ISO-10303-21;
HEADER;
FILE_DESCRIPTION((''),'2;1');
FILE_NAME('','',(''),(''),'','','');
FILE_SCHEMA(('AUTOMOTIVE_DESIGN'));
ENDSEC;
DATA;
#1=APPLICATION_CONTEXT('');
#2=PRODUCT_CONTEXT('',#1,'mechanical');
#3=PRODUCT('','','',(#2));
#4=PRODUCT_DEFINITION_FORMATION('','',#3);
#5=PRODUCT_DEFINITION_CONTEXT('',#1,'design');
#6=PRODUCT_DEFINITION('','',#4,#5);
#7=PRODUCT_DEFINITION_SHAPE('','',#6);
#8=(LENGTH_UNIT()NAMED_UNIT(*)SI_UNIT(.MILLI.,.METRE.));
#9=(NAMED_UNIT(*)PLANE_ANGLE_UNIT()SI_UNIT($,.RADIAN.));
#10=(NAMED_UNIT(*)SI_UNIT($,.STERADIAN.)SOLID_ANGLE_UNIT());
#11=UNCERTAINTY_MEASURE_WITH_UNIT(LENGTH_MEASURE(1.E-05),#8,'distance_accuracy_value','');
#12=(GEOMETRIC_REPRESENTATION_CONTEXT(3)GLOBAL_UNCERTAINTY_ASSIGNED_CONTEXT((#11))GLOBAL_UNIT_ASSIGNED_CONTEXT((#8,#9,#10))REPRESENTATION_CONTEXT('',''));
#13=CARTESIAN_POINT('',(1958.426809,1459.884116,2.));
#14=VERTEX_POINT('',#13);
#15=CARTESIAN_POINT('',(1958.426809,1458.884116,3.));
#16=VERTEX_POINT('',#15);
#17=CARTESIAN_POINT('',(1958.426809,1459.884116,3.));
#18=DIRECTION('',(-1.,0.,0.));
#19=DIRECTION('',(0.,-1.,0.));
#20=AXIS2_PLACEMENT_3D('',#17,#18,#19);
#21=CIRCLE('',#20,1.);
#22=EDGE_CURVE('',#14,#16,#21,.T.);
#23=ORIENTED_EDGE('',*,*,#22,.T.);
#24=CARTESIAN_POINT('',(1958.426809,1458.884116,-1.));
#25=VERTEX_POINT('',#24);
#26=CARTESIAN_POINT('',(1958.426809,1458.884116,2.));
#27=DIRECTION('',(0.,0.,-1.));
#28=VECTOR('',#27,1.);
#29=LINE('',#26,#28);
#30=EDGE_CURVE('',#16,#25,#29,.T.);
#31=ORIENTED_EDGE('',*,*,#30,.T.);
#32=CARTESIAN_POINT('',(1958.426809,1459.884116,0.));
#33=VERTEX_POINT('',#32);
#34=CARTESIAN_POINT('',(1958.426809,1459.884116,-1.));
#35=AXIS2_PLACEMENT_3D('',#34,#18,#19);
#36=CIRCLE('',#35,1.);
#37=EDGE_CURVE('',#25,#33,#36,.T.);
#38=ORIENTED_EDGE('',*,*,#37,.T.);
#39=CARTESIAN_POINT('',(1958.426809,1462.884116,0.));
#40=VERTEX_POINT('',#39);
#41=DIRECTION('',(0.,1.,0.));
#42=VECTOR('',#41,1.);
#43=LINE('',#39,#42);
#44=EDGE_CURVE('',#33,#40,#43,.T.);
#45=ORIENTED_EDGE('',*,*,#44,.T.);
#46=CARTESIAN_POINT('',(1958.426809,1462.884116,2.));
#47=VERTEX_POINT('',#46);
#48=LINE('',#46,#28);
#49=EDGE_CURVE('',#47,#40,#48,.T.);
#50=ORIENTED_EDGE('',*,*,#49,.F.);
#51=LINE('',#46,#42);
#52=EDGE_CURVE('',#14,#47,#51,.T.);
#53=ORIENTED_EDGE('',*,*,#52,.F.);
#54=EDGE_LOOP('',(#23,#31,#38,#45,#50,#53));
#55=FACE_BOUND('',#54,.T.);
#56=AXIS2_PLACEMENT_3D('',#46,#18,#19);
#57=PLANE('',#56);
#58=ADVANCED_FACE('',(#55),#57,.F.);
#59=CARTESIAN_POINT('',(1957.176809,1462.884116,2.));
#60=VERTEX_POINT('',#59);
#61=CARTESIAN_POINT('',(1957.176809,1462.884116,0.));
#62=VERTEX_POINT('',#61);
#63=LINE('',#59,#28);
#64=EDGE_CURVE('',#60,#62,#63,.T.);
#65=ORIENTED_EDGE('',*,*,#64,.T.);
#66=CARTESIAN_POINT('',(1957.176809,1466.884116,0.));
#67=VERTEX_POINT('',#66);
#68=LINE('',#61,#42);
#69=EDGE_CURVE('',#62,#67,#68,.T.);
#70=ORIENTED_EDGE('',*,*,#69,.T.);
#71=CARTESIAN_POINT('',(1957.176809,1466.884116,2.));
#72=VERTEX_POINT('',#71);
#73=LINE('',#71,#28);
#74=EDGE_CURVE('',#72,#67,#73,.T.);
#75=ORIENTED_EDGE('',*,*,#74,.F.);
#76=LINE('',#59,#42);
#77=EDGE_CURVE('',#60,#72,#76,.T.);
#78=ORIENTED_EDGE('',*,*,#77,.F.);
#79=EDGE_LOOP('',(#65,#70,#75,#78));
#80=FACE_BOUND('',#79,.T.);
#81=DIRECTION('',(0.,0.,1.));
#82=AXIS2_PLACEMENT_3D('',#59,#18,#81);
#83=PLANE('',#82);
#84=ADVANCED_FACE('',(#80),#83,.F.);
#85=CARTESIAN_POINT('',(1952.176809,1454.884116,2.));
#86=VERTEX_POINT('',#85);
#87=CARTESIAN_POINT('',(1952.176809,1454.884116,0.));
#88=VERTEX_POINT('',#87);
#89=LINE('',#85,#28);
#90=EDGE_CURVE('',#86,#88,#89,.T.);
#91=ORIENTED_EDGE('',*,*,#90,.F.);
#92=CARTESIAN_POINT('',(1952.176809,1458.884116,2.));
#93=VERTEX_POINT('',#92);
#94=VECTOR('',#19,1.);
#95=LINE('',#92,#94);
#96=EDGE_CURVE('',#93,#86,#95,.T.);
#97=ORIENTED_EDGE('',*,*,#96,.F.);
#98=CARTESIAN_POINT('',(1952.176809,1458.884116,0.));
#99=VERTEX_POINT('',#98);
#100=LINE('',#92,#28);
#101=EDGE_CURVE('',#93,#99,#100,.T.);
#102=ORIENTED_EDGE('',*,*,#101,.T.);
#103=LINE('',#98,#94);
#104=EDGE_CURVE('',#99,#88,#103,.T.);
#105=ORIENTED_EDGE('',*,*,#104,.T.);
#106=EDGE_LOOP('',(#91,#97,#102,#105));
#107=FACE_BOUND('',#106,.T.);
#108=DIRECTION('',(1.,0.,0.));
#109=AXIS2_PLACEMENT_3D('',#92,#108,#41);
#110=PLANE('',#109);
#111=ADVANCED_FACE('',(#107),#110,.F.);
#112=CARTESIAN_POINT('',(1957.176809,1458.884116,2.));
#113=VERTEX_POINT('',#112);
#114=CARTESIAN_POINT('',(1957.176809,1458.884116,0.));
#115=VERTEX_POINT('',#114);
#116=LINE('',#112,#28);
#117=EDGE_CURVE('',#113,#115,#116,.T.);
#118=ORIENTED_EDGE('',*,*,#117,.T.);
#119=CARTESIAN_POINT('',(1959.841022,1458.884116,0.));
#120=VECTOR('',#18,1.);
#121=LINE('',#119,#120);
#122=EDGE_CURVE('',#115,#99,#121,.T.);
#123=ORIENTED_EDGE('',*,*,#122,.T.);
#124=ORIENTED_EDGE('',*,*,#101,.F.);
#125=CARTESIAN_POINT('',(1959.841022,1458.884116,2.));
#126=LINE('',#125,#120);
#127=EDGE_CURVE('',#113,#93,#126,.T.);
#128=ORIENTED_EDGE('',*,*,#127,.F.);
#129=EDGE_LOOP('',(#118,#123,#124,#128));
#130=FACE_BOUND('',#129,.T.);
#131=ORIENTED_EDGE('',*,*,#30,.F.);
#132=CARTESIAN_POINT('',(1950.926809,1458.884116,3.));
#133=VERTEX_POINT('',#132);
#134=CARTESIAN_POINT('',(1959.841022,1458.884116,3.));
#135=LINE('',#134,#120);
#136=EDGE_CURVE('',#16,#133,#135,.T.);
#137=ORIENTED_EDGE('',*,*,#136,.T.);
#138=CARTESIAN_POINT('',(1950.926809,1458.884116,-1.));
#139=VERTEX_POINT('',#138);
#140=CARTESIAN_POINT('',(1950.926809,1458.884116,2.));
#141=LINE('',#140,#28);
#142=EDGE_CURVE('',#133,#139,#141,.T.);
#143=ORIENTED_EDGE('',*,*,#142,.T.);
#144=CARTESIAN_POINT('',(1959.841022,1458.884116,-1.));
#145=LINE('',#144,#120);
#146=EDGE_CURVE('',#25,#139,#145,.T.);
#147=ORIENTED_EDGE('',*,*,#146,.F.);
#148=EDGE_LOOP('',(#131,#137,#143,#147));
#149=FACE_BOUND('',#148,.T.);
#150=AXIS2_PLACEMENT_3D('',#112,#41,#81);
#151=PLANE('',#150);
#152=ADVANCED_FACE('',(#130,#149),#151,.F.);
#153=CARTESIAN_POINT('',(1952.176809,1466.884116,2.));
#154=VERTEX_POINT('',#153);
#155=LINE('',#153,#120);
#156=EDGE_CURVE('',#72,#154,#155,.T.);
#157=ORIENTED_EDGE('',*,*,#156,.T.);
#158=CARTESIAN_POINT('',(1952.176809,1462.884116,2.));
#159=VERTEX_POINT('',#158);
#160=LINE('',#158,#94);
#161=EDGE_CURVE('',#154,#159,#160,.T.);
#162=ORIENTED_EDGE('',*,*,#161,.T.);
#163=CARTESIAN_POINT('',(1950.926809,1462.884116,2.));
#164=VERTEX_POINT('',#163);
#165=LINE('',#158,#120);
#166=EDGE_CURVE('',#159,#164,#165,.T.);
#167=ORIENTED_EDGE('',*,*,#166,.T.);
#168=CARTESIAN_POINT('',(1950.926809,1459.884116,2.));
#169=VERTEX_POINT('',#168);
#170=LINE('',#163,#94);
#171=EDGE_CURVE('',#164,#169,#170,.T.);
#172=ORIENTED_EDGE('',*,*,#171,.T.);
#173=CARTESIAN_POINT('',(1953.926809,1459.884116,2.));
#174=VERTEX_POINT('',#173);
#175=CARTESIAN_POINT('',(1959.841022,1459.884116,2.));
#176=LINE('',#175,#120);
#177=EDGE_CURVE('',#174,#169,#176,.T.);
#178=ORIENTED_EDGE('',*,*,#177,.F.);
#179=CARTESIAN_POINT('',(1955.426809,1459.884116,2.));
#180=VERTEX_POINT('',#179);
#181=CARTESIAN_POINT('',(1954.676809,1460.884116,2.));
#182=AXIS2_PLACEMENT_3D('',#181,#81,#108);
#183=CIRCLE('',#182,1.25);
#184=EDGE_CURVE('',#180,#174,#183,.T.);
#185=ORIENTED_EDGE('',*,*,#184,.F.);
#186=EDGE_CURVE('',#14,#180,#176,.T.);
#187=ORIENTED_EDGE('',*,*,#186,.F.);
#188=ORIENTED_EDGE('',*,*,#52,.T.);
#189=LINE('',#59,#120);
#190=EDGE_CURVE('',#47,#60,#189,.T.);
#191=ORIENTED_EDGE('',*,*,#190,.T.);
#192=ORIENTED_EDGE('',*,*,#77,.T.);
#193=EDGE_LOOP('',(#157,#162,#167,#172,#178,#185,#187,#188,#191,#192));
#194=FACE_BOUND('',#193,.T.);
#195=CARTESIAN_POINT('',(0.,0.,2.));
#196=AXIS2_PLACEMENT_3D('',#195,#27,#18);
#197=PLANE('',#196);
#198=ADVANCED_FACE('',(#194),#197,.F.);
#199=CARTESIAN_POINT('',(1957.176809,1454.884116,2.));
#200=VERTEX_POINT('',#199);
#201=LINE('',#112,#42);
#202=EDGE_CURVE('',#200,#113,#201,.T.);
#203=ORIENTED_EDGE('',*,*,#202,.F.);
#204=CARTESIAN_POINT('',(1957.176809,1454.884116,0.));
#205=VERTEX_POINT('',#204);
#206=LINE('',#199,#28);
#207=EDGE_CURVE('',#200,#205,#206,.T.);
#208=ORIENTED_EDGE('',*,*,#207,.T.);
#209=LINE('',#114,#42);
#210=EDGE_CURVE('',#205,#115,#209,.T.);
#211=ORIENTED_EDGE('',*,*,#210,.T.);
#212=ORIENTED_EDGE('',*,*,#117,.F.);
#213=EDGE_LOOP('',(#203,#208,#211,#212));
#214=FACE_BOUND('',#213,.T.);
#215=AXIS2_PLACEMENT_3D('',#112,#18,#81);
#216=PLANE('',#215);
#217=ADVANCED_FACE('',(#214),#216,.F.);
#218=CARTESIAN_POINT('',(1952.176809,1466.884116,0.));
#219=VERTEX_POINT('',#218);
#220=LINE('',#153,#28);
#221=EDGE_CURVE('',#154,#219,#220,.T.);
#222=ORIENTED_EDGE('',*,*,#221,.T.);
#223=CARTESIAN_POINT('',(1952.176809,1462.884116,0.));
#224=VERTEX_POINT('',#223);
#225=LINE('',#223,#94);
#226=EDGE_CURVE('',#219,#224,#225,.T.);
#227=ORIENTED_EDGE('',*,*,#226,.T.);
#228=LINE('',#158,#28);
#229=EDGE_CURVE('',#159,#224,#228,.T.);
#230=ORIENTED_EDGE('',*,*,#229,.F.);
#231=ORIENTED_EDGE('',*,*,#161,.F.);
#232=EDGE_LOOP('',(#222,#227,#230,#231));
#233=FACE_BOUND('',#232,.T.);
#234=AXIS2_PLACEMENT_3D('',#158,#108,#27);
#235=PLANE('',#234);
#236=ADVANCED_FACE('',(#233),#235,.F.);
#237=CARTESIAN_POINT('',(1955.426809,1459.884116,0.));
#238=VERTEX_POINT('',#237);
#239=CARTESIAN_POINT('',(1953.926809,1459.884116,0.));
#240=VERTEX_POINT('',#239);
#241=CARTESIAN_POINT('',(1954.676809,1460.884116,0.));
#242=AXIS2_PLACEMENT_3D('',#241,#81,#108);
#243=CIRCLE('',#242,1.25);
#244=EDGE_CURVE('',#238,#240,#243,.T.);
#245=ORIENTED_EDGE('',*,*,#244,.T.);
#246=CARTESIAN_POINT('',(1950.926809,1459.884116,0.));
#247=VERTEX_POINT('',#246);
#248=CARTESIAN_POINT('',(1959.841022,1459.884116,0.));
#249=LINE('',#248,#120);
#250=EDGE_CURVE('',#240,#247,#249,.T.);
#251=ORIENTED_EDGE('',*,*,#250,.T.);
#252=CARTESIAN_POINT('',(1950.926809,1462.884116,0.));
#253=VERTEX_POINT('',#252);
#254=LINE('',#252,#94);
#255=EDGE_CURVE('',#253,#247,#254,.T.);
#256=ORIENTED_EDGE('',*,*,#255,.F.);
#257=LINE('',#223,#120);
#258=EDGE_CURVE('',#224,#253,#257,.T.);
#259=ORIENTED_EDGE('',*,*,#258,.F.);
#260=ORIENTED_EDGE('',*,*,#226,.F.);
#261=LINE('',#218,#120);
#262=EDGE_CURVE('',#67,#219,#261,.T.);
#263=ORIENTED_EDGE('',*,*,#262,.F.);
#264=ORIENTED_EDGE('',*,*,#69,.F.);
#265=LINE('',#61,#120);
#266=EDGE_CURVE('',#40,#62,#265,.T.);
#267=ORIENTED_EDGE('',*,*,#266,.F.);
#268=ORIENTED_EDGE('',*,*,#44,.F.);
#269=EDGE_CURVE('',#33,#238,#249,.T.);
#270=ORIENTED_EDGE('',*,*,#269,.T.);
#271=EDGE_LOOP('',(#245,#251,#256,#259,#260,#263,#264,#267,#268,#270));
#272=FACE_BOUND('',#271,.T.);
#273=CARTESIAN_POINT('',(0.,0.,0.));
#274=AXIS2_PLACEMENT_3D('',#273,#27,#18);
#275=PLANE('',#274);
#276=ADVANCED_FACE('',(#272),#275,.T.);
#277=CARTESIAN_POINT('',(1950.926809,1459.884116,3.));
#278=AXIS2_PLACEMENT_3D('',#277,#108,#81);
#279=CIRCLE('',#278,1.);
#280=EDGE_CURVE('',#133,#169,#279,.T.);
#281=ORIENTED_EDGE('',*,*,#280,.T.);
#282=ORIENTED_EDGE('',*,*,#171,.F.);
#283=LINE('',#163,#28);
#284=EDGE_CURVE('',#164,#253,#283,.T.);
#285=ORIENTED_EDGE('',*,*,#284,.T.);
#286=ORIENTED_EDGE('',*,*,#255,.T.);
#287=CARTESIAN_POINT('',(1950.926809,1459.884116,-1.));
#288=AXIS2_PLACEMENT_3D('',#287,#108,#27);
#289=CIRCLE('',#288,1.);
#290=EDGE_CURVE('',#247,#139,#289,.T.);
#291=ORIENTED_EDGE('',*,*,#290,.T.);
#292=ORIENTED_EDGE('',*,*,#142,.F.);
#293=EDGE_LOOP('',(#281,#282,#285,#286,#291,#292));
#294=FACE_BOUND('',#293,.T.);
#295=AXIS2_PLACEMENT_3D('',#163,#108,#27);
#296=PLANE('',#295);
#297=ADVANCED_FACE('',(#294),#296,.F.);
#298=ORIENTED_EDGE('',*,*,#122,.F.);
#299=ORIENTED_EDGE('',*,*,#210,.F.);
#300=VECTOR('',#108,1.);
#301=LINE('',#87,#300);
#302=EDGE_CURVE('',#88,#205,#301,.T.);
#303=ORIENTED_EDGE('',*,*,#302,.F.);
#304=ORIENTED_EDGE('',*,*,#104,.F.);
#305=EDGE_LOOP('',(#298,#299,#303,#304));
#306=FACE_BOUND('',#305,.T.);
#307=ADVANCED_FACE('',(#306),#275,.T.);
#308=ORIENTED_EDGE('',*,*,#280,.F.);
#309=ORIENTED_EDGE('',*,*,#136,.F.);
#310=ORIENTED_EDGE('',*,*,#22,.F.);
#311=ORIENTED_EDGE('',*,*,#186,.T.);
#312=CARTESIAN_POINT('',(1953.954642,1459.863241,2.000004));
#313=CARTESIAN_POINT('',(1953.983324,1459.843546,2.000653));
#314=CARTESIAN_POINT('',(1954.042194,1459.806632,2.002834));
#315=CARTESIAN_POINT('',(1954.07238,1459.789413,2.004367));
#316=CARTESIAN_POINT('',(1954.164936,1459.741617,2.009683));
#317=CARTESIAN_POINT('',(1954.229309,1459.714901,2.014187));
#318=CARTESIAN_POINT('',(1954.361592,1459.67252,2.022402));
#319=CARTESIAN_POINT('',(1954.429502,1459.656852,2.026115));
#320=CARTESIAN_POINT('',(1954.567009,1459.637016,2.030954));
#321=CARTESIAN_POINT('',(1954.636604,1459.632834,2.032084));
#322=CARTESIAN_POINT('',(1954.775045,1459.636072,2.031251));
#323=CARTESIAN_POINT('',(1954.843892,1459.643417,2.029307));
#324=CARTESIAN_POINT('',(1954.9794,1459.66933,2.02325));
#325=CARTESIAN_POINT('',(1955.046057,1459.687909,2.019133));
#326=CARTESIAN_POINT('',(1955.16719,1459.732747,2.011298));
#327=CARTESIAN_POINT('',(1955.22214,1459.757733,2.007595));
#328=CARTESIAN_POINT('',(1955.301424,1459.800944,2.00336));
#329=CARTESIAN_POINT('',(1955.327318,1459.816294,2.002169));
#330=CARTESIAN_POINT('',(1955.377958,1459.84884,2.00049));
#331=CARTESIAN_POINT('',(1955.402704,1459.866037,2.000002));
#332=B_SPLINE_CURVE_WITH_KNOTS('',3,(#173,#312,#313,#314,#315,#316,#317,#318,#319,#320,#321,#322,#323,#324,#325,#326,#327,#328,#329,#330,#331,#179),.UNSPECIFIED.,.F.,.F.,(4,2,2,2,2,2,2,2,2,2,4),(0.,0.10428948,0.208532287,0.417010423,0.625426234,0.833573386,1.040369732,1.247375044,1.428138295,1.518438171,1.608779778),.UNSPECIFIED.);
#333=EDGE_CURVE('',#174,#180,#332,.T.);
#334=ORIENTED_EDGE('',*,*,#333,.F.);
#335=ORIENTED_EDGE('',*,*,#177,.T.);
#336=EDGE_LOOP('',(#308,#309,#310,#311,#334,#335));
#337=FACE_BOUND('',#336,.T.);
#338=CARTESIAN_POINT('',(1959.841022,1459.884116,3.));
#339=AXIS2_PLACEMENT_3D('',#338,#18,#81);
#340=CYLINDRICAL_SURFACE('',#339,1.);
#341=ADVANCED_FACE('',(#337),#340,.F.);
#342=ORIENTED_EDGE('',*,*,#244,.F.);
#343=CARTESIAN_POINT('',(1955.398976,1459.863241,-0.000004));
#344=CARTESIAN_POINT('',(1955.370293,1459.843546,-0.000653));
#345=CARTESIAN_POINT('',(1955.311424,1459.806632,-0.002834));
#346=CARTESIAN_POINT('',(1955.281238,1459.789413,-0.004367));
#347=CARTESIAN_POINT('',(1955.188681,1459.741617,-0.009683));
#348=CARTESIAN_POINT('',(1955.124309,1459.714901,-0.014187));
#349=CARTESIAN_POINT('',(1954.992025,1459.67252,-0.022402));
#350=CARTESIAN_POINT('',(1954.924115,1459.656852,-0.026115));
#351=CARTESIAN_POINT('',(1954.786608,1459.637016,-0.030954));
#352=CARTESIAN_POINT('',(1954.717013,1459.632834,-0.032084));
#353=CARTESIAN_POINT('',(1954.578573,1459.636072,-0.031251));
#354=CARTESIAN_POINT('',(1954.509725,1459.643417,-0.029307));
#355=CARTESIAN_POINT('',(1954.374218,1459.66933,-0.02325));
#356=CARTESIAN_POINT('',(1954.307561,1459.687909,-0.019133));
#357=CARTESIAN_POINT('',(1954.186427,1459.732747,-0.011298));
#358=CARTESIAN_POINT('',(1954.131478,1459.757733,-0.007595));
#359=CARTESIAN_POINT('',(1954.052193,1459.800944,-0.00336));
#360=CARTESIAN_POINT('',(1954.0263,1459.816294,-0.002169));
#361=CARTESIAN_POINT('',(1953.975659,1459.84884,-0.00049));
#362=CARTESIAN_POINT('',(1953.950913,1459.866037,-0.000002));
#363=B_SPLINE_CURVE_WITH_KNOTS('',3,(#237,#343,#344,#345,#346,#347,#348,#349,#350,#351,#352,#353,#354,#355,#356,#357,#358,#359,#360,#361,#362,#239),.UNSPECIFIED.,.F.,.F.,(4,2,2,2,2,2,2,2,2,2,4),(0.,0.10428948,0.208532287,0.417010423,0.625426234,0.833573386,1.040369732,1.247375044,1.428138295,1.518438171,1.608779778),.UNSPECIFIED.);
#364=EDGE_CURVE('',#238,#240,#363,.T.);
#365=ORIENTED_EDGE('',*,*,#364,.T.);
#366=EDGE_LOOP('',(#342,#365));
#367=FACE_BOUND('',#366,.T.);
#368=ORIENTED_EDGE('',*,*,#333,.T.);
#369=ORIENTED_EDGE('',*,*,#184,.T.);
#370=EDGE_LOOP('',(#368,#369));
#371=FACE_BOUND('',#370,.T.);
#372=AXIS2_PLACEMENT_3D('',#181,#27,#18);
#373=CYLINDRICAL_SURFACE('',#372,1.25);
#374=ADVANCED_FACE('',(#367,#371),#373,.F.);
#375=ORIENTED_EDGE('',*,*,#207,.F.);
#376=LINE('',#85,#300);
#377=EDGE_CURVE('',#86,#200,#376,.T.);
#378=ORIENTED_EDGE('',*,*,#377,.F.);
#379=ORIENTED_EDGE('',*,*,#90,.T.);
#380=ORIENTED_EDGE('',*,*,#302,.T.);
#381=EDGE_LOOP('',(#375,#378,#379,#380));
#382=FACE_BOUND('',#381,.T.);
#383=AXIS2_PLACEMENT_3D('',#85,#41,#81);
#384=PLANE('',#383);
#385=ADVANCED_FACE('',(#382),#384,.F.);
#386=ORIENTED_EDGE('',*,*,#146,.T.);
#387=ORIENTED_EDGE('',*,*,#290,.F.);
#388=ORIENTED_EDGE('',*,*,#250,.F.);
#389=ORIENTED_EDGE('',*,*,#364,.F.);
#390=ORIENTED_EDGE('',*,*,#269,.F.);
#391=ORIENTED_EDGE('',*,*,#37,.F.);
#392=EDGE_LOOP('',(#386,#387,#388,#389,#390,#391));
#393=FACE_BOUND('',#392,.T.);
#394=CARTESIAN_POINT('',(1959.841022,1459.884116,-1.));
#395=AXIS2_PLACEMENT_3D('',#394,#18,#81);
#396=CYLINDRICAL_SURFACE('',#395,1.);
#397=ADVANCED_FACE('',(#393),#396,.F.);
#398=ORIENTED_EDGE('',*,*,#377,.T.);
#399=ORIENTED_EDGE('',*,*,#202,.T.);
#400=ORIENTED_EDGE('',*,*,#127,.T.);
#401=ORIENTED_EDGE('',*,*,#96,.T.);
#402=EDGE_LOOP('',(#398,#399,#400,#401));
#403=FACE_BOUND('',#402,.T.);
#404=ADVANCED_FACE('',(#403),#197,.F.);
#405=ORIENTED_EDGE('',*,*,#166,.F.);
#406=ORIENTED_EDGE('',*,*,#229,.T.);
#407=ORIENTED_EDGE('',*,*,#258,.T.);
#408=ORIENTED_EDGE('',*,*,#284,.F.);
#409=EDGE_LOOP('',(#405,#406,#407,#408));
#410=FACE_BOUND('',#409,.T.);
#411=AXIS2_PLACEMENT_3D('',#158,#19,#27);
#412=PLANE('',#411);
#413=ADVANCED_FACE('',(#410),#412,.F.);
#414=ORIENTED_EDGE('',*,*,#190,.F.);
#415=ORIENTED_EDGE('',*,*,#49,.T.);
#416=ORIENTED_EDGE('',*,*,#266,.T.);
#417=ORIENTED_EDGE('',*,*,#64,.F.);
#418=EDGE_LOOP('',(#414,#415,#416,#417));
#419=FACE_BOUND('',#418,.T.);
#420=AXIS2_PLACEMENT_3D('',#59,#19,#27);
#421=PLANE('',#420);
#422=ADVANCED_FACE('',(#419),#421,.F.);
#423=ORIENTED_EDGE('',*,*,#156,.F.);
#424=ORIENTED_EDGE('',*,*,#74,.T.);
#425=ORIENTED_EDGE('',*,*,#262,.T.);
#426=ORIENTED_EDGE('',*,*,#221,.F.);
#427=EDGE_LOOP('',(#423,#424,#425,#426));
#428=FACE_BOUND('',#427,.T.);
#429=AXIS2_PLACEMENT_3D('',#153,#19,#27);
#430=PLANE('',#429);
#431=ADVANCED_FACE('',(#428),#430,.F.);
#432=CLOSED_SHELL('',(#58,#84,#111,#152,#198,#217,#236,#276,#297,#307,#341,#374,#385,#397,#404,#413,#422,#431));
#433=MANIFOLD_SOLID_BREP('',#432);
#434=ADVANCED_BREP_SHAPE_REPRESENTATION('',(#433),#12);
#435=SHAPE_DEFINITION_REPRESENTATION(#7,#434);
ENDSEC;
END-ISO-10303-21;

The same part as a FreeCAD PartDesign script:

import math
import FreeCAD as App
import Part
import Sketcher
from FreeCAD import Vector
Q = App.Units.Quantity


def add_polygon(sketch, points):
    """Adds a closed chain of lines whose ends are joined by coincident constraints."""
    first, n = sketch.GeometryCount, len(points)
    for a, b in zip(points, points[1:] + points[:1]):
        sketch.addGeometry(Part.LineSegment(App.Vector(*a, 0), App.Vector(*b, 0)), False)
    for i in range(n):
        sketch.addConstraint(Sketcher.Constraint("Coincident", first + i, 2, first + (i + 1) % n, 1))

doc = App.newDocument("Part")
body = doc.addObject("PartDesign::Body", "Body")

# Sketch on XY plane
sketch1 = body.newObject("Sketcher::SketchObject", "Sketch")
sketch1.AttachmentSupport = (doc.getObject("XY_Plane"), [""])
sketch1.MapMode = "FlatFace"
add_polygon(sketch1, [(1957.2, 1466.9), (1952.2, 1466.9), (1952.2, 1462.9), (1950.9, 1462.9), (1950.9, 1458.9), (1952.2, 1458.9), (1952.2, 1454.9), (1957.2, 1454.9), (1957.2, 1458.9), (1958.4, 1458.9), (1958.4, 1462.9), (1957.2, 1462.9)])  # lines 0-11
sketch1.addGeometry(Part.Circle(Vector(1954.7, 1460.9, 0), Vector(0, 0, 1), 1.2), False)  # 12
sketch1.addConstraint([
    Sketcher.Constraint("Horizontal", 0),
    Sketcher.Constraint("Vertical", 1),
    Sketcher.Constraint("Horizontal", 2),
    Sketcher.Constraint("Vertical", 3),
    Sketcher.Constraint("Horizontal", 4),
    Sketcher.Constraint("Vertical", 5),
    Sketcher.Constraint("Horizontal", 6),
    Sketcher.Constraint("Vertical", 7),
    Sketcher.Constraint("Horizontal", 8),
    Sketcher.Constraint("Vertical", 9),
    Sketcher.Constraint("Horizontal", 10),
    Sketcher.Constraint("Vertical", 11),
    Sketcher.Constraint("Horizontal", 4, 2, 7, 2),
    Sketcher.Constraint("Horizontal", 2, 2, 9, 2),
    Sketcher.Constraint("Vertical", 1, 2, 4, 2),
    Sketcher.Constraint("Vertical", 7, 2, 10, 2),
    Sketcher.Constraint("Equal", 4, 8),
    Sketcher.Constraint("Equal", 1, 3),
    Sketcher.Constraint("Equal", 3, 5),
    Sketcher.Constraint("Diameter", 12, Q("2.5 mm")),
    Sketcher.Constraint("DistanceX", 0, 2, 0, 1, Q("5 mm")),
    Sketcher.Constraint("DistanceY", 1, 2, 1, 1, Q("4 mm")),
    Sketcher.Constraint("DistanceY", 12, 3, 0, 2, Q("6 mm")),
    Sketcher.Constraint("DistanceX", 2, 2, 2, 1, Q("1.25 mm")),
    Sketcher.Constraint("DistanceX", 0, 2, 12, 3, Q("2.5 mm")),
    Sketcher.Constraint("DistanceX", -1, 1, 12, 3, Q("1954.676809 mm")),
    Sketcher.Constraint("DistanceY", -1, 1, 12, 3, Q("1460.884116 mm")),
])
pad1 = body.newObject("PartDesign::Pad", "Pad")
pad1.Profile = sketch1
pad1.Length = 2

# Sketch on YZ plane
sketch2 = body.newObject("Sketcher::SketchObject", "Sketch001")
sketch2.AttachmentSupport = (doc.getObject("YZ_Plane"), [""])
sketch2.MapMode = "FlatFace"
sketch2.AttachmentOffset = App.Placement(Vector(0, 0, 1950.926809), App.Rotation())
sketch2.addGeometry([
    Part.LineSegment(Vector(1459.9, 2, 0), Vector(1458.9, 2, 0)),  # 0
    Part.LineSegment(Vector(1458.9, 2, 0), Vector(1458.9, 3, 0)),  # 1
    Part.ArcOfCircle(Part.Circle(Vector(1459.9, 3, 0), Vector(0, 0, 1), 1), math.radians(-180), math.radians(-90)),  # 2
    Part.LineSegment(Vector(1458.9, -1, 0), Vector(1458.9, 0, 0)),  # 3
    Part.LineSegment(Vector(1458.9, 0, 0), Vector(1459.9, 0, 0)),  # 4
    Part.ArcOfCircle(Part.Circle(Vector(1459.9, -1, 0), Vector(0, 0, 1), 1), math.radians(90), math.radians(180)),  # 5
], False)
sketch2.addConstraint([
    Sketcher.Constraint("Coincident", 0, 2, 1, 1),
    Sketcher.Constraint("Tangent", 1, 2, 2, 1),
    Sketcher.Constraint("Tangent", 2, 2, 0, 1),
    Sketcher.Constraint("Coincident", 3, 2, 4, 1),
    Sketcher.Constraint("Tangent", 4, 2, 5, 1),
    Sketcher.Constraint("Tangent", 5, 2, 3, 1),
    Sketcher.Constraint("Horizontal", 0),
    Sketcher.Constraint("Vertical", 1),
    Sketcher.Constraint("Vertical", 3),
    Sketcher.Constraint("Horizontal", 4),
    Sketcher.Constraint("Equal", 2, 5),
    Sketcher.Constraint("PointOnObject", 3, 2, -1),
    Sketcher.Constraint("Vertical", 2, 3, 5, 3),
    Sketcher.Constraint("Radius", 2, Q("1 mm")),
    Sketcher.Constraint("DistanceY", -1, 1, 2, 3, Q("3 mm")),
    Sketcher.Constraint("DistanceX", -1, 1, 2, 3, Q("1459.884116 mm")),
])
pad2 = body.newObject("PartDesign::Pad", "Pad001")
pad2.Profile = sketch2
pad2.Length = 7.5

# Sketch on XY plane
sketch3 = body.newObject("Sketcher::SketchObject", "Sketch002")
sketch3.AttachmentSupport = (doc.getObject("XY_Plane"), [""])
sketch3.MapMode = "FlatFace"
sketch3.AttachmentOffset = App.Placement(Vector(0, 0, 2), App.Rotation())
sketch3.addGeometry(Part.Circle(Vector(1954.7, 1460.9, 0), Vector(0, 0, 1), 1.2), False)
sketch3.addConstraint([
    Sketcher.Constraint("Diameter", 0, Q("2.5 mm")),
    Sketcher.Constraint("DistanceX", -1, 1, 0, 3, Q("1954.676809 mm")),
    Sketcher.Constraint("DistanceY", -1, 1, 0, 3, Q("1460.884116 mm")),
])
pocket1 = body.newObject("PartDesign::Pocket", "Pocket")
pocket1.Profile = sketch3
pocket1.Type = "ThroughAll"
pocket1.Midplane = True

doc.recompute()
